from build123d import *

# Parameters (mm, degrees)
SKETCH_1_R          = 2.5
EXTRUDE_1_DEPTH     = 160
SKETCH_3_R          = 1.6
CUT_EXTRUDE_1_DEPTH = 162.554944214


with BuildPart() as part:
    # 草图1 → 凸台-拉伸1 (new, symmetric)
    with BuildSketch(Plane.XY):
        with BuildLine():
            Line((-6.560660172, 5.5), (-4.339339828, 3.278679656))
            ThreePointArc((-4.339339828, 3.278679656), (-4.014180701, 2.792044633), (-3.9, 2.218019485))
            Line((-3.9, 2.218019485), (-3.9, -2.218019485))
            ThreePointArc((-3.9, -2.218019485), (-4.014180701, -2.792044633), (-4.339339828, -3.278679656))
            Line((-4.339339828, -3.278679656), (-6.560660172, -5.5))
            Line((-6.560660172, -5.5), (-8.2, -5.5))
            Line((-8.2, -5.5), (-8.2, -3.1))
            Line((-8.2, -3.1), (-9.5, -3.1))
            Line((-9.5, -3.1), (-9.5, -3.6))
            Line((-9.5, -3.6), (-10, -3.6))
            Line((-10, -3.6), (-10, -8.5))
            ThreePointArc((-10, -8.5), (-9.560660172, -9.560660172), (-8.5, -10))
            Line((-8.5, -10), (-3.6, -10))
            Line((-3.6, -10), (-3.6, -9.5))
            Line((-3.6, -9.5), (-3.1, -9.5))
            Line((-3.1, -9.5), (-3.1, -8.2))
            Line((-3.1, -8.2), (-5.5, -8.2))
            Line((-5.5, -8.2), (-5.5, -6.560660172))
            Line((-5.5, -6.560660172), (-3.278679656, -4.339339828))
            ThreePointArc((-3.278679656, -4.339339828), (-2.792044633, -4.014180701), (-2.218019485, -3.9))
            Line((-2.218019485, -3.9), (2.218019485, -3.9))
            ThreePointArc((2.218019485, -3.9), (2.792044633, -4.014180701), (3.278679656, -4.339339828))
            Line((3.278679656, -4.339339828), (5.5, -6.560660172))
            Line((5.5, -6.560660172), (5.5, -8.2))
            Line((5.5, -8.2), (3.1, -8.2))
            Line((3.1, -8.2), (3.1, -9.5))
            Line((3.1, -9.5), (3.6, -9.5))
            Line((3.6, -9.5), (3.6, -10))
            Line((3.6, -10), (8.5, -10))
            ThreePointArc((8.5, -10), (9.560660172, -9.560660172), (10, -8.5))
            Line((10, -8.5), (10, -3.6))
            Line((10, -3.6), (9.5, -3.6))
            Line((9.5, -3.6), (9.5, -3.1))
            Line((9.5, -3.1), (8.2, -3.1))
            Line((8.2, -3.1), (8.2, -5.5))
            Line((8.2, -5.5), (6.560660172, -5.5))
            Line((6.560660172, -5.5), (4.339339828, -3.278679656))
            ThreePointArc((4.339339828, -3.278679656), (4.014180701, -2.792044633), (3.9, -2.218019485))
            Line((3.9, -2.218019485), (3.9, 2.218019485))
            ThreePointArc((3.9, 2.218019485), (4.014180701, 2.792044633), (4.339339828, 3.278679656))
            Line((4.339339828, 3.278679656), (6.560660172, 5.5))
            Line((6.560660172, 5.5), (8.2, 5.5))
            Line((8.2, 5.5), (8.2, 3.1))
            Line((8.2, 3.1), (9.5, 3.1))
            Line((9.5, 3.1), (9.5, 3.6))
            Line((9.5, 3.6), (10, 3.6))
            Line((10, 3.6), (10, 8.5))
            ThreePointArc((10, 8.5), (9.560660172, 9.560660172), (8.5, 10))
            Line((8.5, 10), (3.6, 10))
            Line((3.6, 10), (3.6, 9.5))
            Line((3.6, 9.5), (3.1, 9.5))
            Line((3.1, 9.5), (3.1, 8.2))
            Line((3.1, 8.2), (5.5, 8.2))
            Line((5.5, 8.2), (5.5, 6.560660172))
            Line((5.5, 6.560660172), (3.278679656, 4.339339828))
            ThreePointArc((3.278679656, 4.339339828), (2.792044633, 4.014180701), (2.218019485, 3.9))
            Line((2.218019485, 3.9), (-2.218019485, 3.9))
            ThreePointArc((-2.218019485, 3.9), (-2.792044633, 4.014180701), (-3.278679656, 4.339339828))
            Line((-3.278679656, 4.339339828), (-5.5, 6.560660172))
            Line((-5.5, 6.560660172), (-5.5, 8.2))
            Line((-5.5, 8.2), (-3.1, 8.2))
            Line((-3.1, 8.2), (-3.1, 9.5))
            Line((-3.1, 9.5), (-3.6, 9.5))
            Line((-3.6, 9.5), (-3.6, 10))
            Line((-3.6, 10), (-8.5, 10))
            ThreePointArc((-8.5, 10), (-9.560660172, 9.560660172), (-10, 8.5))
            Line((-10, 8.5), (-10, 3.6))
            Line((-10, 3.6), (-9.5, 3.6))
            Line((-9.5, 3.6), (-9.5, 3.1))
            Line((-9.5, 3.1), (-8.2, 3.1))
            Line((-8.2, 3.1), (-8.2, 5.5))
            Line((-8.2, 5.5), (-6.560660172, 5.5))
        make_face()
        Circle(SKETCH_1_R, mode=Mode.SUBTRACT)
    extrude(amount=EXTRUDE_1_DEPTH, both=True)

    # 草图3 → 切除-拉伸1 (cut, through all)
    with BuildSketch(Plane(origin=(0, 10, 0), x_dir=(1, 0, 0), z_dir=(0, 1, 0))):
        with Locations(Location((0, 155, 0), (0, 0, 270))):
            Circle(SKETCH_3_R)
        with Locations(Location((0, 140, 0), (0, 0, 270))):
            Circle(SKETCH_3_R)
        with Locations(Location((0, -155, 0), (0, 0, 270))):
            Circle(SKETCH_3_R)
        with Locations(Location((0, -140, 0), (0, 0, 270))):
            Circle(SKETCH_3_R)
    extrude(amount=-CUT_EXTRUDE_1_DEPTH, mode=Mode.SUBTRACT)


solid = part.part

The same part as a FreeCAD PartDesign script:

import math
import FreeCAD as App
import Part
import Sketcher
from FreeCAD import Vector

doc = App.newDocument("Part")
body = doc.addObject("PartDesign::Body", "Body")

# Sketch on XY plane
sketch1 = doc.addObject("Sketcher::SketchObject", "Sketch")
body.addObject(sketch1)
sketch1.AttachmentSupport = (doc.XY_Plane, [""])
sketch1.MapMode = "FlatFace"
sketch1.addGeometry([
    Part.LineSegment(Vector(-6.56066, 5.5, 0), Vector(-4.33934, 3.27868, 0)),  # 0
    Part.ArcOfCircle(Part.Circle(Vector(-5.4, 2.218019, 0), Vector(0, 0, 1), 1.5), math.radians(0), math.radians(45)),  # 1
    Part.LineSegment(Vector(-3.9, 2.218019, 0), Vector(-3.9, -2.218019, 0)),  # 2
    Part.ArcOfCircle(Part.Circle(Vector(-5.4, -2.218019, 0), Vector(0, 0, 1), 1.5), math.radians(-45), math.radians(0)),  # 3
    Part.LineSegment(Vector(-4.33934, -3.27868, 0), Vector(-6.56066, -5.5, 0)),  # 4
    Part.LineSegment(Vector(-6.56066, -5.5, 0), Vector(-8.2, -5.5, 0)),  # 5
    Part.LineSegment(Vector(-8.2, -5.5, 0), Vector(-8.2, -3.1, 0)),  # 6
    Part.LineSegment(Vector(-8.2, -3.1, 0), Vector(-9.5, -3.1, 0)),  # 7
    Part.LineSegment(Vector(-9.5, -3.1, 0), Vector(-9.5, -3.6, 0)),  # 8
    Part.LineSegment(Vector(-9.5, -3.6, 0), Vector(-10, -3.6, 0)),  # 9
    Part.LineSegment(Vector(-10, -3.6, 0), Vector(-10, -8.5, 0)),  # 10
    Part.ArcOfCircle(Part.Circle(Vector(-8.5, -8.5, 0), Vector(0, 0, 1), 1.5), math.radians(180), math.radians(270)),  # 11
    Part.LineSegment(Vector(-8.5, -10, 0), Vector(-3.6, -10, 0)),  # 12
    Part.LineSegment(Vector(-3.6, -10, 0), Vector(-3.6, -9.5, 0)),  # 13
    Part.LineSegment(Vector(-3.6, -9.5, 0), Vector(-3.1, -9.5, 0)),  # 14
    Part.LineSegment(Vector(-3.1, -9.5, 0), Vector(-3.1, -8.2, 0)),  # 15
    Part.LineSegment(Vector(-3.1, -8.2, 0), Vector(-5.5, -8.2, 0)),  # 16
    Part.LineSegment(Vector(-5.5, -8.2, 0), Vector(-5.5, -6.56066, 0)),  # 17
    Part.LineSegment(Vector(-5.5, -6.56066, 0), Vector(-3.27868, -4.33934, 0)),  # 18
    Part.ArcOfCircle(Part.Circle(Vector(-2.218019, -5.4, 0), Vector(0, 0, 1), 1.5), math.radians(90), math.radians(135)),  # 19
    Part.LineSegment(Vector(-2.218019, -3.9, 0), Vector(2.218019, -3.9, 0)),  # 20
    Part.ArcOfCircle(Part.Circle(Vector(2.218019, -5.4, 0), Vector(0, 0, 1), 1.5), math.radians(45), math.radians(90)),  # 21
    Part.LineSegment(Vector(3.27868, -4.33934, 0), Vector(5.5, -6.56066, 0)),  # 22
    Part.LineSegment(Vector(5.5, -6.56066, 0), Vector(5.5, -8.2, 0)),  # 23
    Part.LineSegment(Vector(5.5, -8.2, 0), Vector(3.1, -8.2, 0)),  # 24
    Part.LineSegment(Vector(3.1, -8.2, 0), Vector(3.1, -9.5, 0)),  # 25
    Part.LineSegment(Vector(3.1, -9.5, 0), Vector(3.6, -9.5, 0)),  # 26
    Part.LineSegment(Vector(3.6, -9.5, 0), Vector(3.6, -10, 0)),  # 27
    Part.LineSegment(Vector(3.6, -10, 0), Vector(8.5, -10, 0)),  # 28
    Part.ArcOfCircle(Part.Circle(Vector(8.5, -8.5, 0), Vector(0, 0, 1), 1.5), math.radians(-90), math.radians(0)),  # 29
    Part.LineSegment(Vector(10, -8.5, 0), Vector(10, -3.6, 0)),  # 30
    Part.LineSegment(Vector(10, -3.6, 0), Vector(9.5, -3.6, 0)),  # 31
    Part.LineSegment(Vector(9.5, -3.6, 0), Vector(9.5, -3.1, 0)),  # 32
    Part.LineSegment(Vector(9.5, -3.1, 0), Vector(8.2, -3.1, 0)),  # 33
    Part.LineSegment(Vector(8.2, -3.1, 0), Vector(8.2, -5.5, 0)),  # 34
    Part.LineSegment(Vector(8.2, -5.5, 0), Vector(6.56066, -5.5, 0)),  # 35
    Part.LineSegment(Vector(6.56066, -5.5, 0), Vector(4.33934, -3.27868, 0)),  # 36
    Part.ArcOfCircle(Part.Circle(Vector(5.4, -2.218019, 0), Vector(0, 0, 1), 1.5), math.radians(180), math.radians(225)),  # 37
    Part.LineSegment(Vector(3.9, -2.218019, 0), Vector(3.9, 2.218019, 0)),  # 38
    Part.ArcOfCircle(Part.Circle(Vector(5.4, 2.218019, 0), Vector(0, 0, 1), 1.5), math.radians(135), math.radians(180)),  # 39
    Part.LineSegment(Vector(4.33934, 3.27868, 0), Vector(6.56066, 5.5, 0)),  # 40
    Part.LineSegment(Vector(6.56066, 5.5, 0), Vector(8.2, 5.5, 0)),  # 41
    Part.LineSegment(Vector(8.2, 5.5, 0), Vector(8.2, 3.1, 0)),  # 42
    Part.LineSegment(Vector(8.2, 3.1, 0), Vector(9.5, 3.1, 0)),  # 43
    Part.LineSegment(Vector(9.5, 3.1, 0), Vector(9.5, 3.6, 0)),  # 44
    Part.LineSegment(Vector(9.5, 3.6, 0), Vector(10, 3.6, 0)),  # 45
    Part.LineSegment(Vector(10, 3.6, 0), Vector(10, 8.5, 0)),  # 46
    Part.ArcOfCircle(Part.Circle(Vector(8.5, 8.5, 0), Vector(0, 0, 1), 1.5), math.radians(0), math.radians(90)),  # 47
    Part.LineSegment(Vector(8.5, 10, 0), Vector(3.6, 10, 0)),  # 48
    Part.LineSegment(Vector(3.6, 10, 0), Vector(3.6, 9.5, 0)),  # 49
    Part.LineSegment(Vector(3.6, 9.5, 0), Vector(3.1, 9.5, 0)),  # 50
    Part.LineSegment(Vector(3.1, 9.5, 0), Vector(3.1, 8.2, 0)),  # 51
    Part.LineSegment(Vector(3.1, 8.2, 0), Vector(5.5, 8.2, 0)),  # 52
    Part.LineSegment(Vector(5.5, 8.2, 0), Vector(5.5, 6.56066, 0)),  # 53
    Part.LineSegment(Vector(5.5, 6.56066, 0), Vector(3.27868, 4.33934, 0)),  # 54
    Part.ArcOfCircle(Part.Circle(Vector(2.218019, 5.4, 0), Vector(0, 0, 1), 1.5), math.radians(-90), math.radians(-45)),  # 55
    Part.LineSegment(Vector(2.218019, 3.9, 0), Vector(-2.218019, 3.9, 0)),  # 56
    Part.ArcOfCircle(Part.Circle(Vector(-2.218019, 5.4, 0), Vector(0, 0, 1), 1.5), math.radians(-135), math.radians(-90)),  # 57
    Part.LineSegment(Vector(-3.27868, 4.33934, 0), Vector(-5.5, 6.56066, 0)),  # 58
    Part.LineSegment(Vector(-5.5, 6.56066, 0), Vector(-5.5, 8.2, 0)),  # 59
    Part.LineSegment(Vector(-5.5, 8.2, 0), Vector(-3.1, 8.2, 0)),  # 60
    Part.LineSegment(Vector(-3.1, 8.2, 0), Vector(-3.1, 9.5, 0)),  # 61
    Part.LineSegment(Vector(-3.1, 9.5, 0), Vector(-3.6, 9.5, 0)),  # 62
    Part.LineSegment(Vector(-3.6, 9.5, 0), Vector(-3.6, 10, 0)),  # 63
    Part.LineSegment(Vector(-3.6, 10, 0), Vector(-8.5, 10, 0)),  # 64
    Part.ArcOfCircle(Part.Circle(Vector(-8.5, 8.5, 0), Vector(0, 0, 1), 1.5), math.radians(90), math.radians(180)),  # 65
    Part.LineSegment(Vector(-10, 8.5, 0), Vector(-10, 3.6, 0)),  # 66
    Part.LineSegment(Vector(-10, 3.6, 0), Vector(-9.5, 3.6, 0)),  # 67
    Part.LineSegment(Vector(-9.5, 3.6, 0), Vector(-9.5, 3.1, 0)),  # 68
    Part.LineSegment(Vector(-9.5, 3.1, 0), Vector(-8.2, 3.1, 0)),  # 69
    Part.LineSegment(Vector(-8.2, 3.1, 0), Vector(-8.2, 5.5, 0)),  # 70
    Part.LineSegment(Vector(-8.2, 5.5, 0), Vector(-6.56066, 5.5, 0)),  # 71
    Part.Circle(Vector(0, 0, 0), Vector(0, 0, 1), 2.5),  # 72
], False)
sketch1.addConstraint([
    Sketcher.Constraint("Tangent", 0, 2, 1, 2),
    Sketcher.Constraint("Tangent", 1, 1, 2, 1),
    Sketcher.Constraint("Tangent", 2, 2, 3, 2),
    Sketcher.Constraint("Tangent", 3, 1, 4, 1),
    Sketcher.Constraint("Coincident", 4, 2, 5, 1),
    Sketcher.Constraint("Coincident", 5, 2, 6, 1),
    Sketcher.Constraint("Coincident", 6, 2, 7, 1),
    Sketcher.Constraint("Coincident", 7, 2, 8, 1),
    Sketcher.Constraint("Coincident", 8, 2, 9, 1),
    Sketcher.Constraint("Coincident", 9, 2, 10, 1),
    Sketcher.Constraint("Tangent", 10, 2, 11, 1),
    Sketcher.Constraint("Tangent", 11, 2, 12, 1),
    Sketcher.Constraint("Coincident", 12, 2, 13, 1),
    Sketcher.Constraint("Coincident", 13, 2, 14, 1),
    Sketcher.Constraint("Coincident", 14, 2, 15, 1),
    Sketcher.Constraint("Coincident", 15, 2, 16, 1),
    Sketcher.Constraint("Coincident", 16, 2, 17, 1),
    Sketcher.Constraint("Coincident", 17, 2, 18, 1),
    Sketcher.Constraint("Tangent", 18, 2, 19, 2),
    Sketcher.Constraint("Tangent", 19, 1, 20, 1),
    Sketcher.Constraint("Tangent", 20, 2, 21, 2),
    Sketcher.Constraint("Tangent", 21, 1, 22, 1),
    Sketcher.Constraint("Coincident", 22, 2, 23, 1),
    Sketcher.Constraint("Coincident", 23, 2, 24, 1),
    Sketcher.Constraint("Coincident", 24, 2, 25, 1),
    Sketcher.Constraint("Coincident", 25, 2, 26, 1),
    Sketcher.Constraint("Coincident", 26, 2, 27, 1),
    Sketcher.Constraint("Coincident", 27, 2, 28, 1),
    Sketcher.Constraint("Tangent", 28, 2, 29, 1),
    Sketcher.Constraint("Tangent", 29, 2, 30, 1),
    Sketcher.Constraint("Coincident", 30, 2, 31, 1),
    Sketcher.Constraint("Coincident", 31, 2, 32, 1),
    Sketcher.Constraint("Coincident", 32, 2, 33, 1),
    Sketcher.Constraint("Coincident", 33, 2, 34, 1),
    Sketcher.Constraint("Coincident", 34, 2, 35, 1),
    Sketcher.Constraint("Coincident", 35, 2, 36, 1),
    Sketcher.Constraint("Tangent", 36, 2, 37, 2),
    Sketcher.Constraint("Tangent", 37, 1, 38, 1),
    Sketcher.Constraint("Tangent", 38, 2, 39, 2),
    Sketcher.Constraint("Tangent", 39, 1, 40, 1),
    Sketcher.Constraint("Coincident", 40, 2, 41, 1),
    Sketcher.Constraint("Coincident", 41, 2, 42, 1),
    Sketcher.Constraint("Coincident", 42, 2, 43, 1),
    Sketcher.Constraint("Coincident", 43, 2, 44, 1),
    Sketcher.Constraint("Coincident", 44, 2, 45, 1),
    Sketcher.Constraint("Coincident", 45, 2, 46, 1),
    Sketcher.Constraint("Tangent", 46, 2, 47, 1),
    Sketcher.Constraint("Tangent", 47, 2, 48, 1),
    Sketcher.Constraint("Coincident", 48, 2, 49, 1),
    Sketcher.Constraint("Coincident", 49, 2, 50, 1),
    Sketcher.Constraint("Coincident", 50, 2, 51, 1),
    Sketcher.Constraint("Coincident", 51, 2, 52, 1),
    Sketcher.Constraint("Coincident", 52, 2, 53, 1),
    Sketcher.Constraint("Coincident", 53, 2, 54, 1),
    Sketcher.Constraint("Tangent", 54, 2, 55, 2),
    Sketcher.Constraint("Tangent", 55, 1, 56, 1),
    Sketcher.Constraint("Tangent", 56, 2, 57, 2),
    Sketcher.Constraint("Tangent", 57, 1, 58, 1),
    Sketcher.Constraint("Coincident", 58, 2, 59, 1),
    Sketcher.Constraint("Coincident", 59, 2, 60, 1),
    Sketcher.Constraint("Coincident", 60, 2, 61, 1),
    Sketcher.Constraint("Coincident", 61, 2, 62, 1),
    Sketcher.Constraint("Coincident", 62, 2, 63, 1),
    Sketcher.Constraint("Coincident", 63, 2, 64, 1),
    Sketcher.Constraint("Tangent", 64, 2, 65, 1),
    Sketcher.Constraint("Tangent", 65, 2, 66, 1),
    Sketcher.Constraint("Coincident", 66, 2, 67, 1),
    Sketcher.Constraint("Coincident", 67, 2, 68, 1),
    Sketcher.Constraint("Coincident", 68, 2, 69, 1),
    Sketcher.Constraint("Coincident", 69, 2, 70, 1),
    Sketcher.Constraint("Coincident", 70, 2, 71, 1),
    Sketcher.Constraint("Coincident", 71, 2, 0, 1),
    Sketcher.Constraint("Vertical", 2),
    Sketcher.Constraint("Horizontal", 5),
    Sketcher.Constraint("Vertical", 6),
    Sketcher.Constraint("Horizontal", 7),
    Sketcher.Constraint("Vertical", 8),
    Sketcher.Constraint("Horizontal", 9),
    Sketcher.Constraint("Vertical", 10),
    Sketcher.Constraint("Horizontal", 12),
    Sketcher.Constraint("Vertical", 13),
    Sketcher.Constraint("Horizontal", 14),
    Sketcher.Constraint("Vertical", 15),
    Sketcher.Constraint("Horizontal", 16),
    Sketcher.Constraint("Vertical", 17),
    Sketcher.Constraint("Horizontal", 20),
    Sketcher.Constraint("Vertical", 23),
    Sketcher.Constraint("Horizontal", 24),
    Sketcher.Constraint("Vertical", 25),
    Sketcher.Constraint("Horizontal", 26),
    Sketcher.Constraint("Vertical", 27),
    Sketcher.Constraint("Horizontal", 28),
    Sketcher.Constraint("Vertical", 30),
    Sketcher.Constraint("Horizontal", 31),
    Sketcher.Constraint("Vertical", 32),
    Sketcher.Constraint("Horizontal", 33),
    Sketcher.Constraint("Vertical", 34),
    Sketcher.Constraint("Horizontal", 35),
    Sketcher.Constraint("Vertical", 38),
    Sketcher.Constraint("Horizontal", 41),
    Sketcher.Constraint("Vertical", 42),
    Sketcher.Constraint("Horizontal", 43),
    Sketcher.Constraint("Vertical", 44),
    Sketcher.Constraint("Horizontal", 45),
    Sketcher.Constraint("Vertical", 46),
    Sketcher.Constraint("Horizontal", 48),
    Sketcher.Constraint("Vertical", 49),
    Sketcher.Constraint("Horizontal", 50),
    Sketcher.Constraint("Vertical", 51),
    Sketcher.Constraint("Horizontal", 52),
    Sketcher.Constraint("Vertical", 53),
    Sketcher.Constraint("Horizontal", 56),
    Sketcher.Constraint("Vertical", 59),
    Sketcher.Constraint("Horizontal", 60),
    Sketcher.Constraint("Vertical", 61),
    Sketcher.Constraint("Horizontal", 62),
    Sketcher.Constraint("Vertical", 63),
    Sketcher.Constraint("Horizontal", 64),
    Sketcher.Constraint("Vertical", 66),
    Sketcher.Constraint("Horizontal", 67),
    Sketcher.Constraint("Vertical", 68),
    Sketcher.Constraint("Horizontal", 69),
    Sketcher.Constraint("Vertical", 70),
    Sketcher.Constraint("Horizontal", 71),
    Sketcher.Constraint("Coincident", 72, 3, -1, 1),
    Sketcher.Constraint("Equal", 1, 3),
    Sketcher.Constraint("Equal", 3, 11),
    Sketcher.Constraint("Equal", 11, 19),
    Sketcher.Constraint("Equal", 19, 21),
    Sketcher.Constraint("Equal", 21, 29),
    Sketcher.Constraint("Equal", 29, 37),
    Sketcher.Constraint("Equal", 37, 39),
    Sketcher.Constraint("Equal", 39, 47),
    Sketcher.Constraint("Equal", 47, 55),
    Sketcher.Constraint("Equal", 55, 57),
    Sketcher.Constraint("Equal", 57, 65),
    Sketcher.Constraint("Symmetric", 1, 3, 37, 3, -1, 1),
    Sketcher.Constraint("Symmetric", 11, 3, 47, 3, -1, 1),
    Sketcher.Constraint("Symmetric", 19, 3, 55, 3, -1, 1),
    Sketcher.Constraint("Symmetric", 29, 3, 65, 3, -1, 1),
    Sketcher.Constraint("Symmetric", 3, 1, 39, 1, -1, 1),
    Sketcher.Constraint("Symmetric", 5, 2, 41, 2, -1, 1),
    Sketcher.Constraint("Symmetric", 7, 2, 43, 2, -1, 1),
    Sketcher.Constraint("Symmetric", 13, 2, 49, 2, -1, 1),
    Sketcher.Constraint("Symmetric", 15, 2, 51, 2, -1, 1),
    Sketcher.Constraint("Symmetric", 17, 2, 53, 2, -1, 1),
    Sketcher.Constraint("Symmetric", 21, 1, 57, 1, -1, 1),
    Sketcher.Constraint("Symmetric", 23, 2, 59, 2, -1, 1),
    Sketcher.Constraint("Symmetric", 25, 2, 61, 2, -1, 1),
    Sketcher.Constraint("Symmetric", 31, 2, 67, 2, -1, 1),
    Sketcher.Constraint("Symmetric", 33, 2, 69, 2, -1, 1),
    Sketcher.Constraint("Symmetric", 35, 2, 71, 2, -1, 1),
    Sketcher.Constraint("Symmetric", 11, 3, 29, 3, -2),
    Sketcher.Constraint("Symmetric", 18, 2, 21, 1, -2),
    Sketcher.Constraint("Symmetric", 16, 2, 23, 2, -2),
    Sketcher.Constraint("Symmetric", 14, 2, 25, 2, -2),
    Sketcher.Constraint("Symmetric", 8, 2, 31, 2, -2),
    Sketcher.Constraint("Symmetric", 6, 2, 33, 2, -2),
    Sketcher.Constraint("Symmetric", 4, 2, 35, 2, -2),
    Sketcher.Constraint("Perpendicular", 0, 4),
    Sketcher.Constraint("Parallel", 4, 18),
    Sketcher.Constraint("Perpendicular", 18, 22),
    Sketcher.Constraint("Horizontal", 45, 2, 66, 2),
    Sketcher.Constraint("Vertical", 27, 2, 48, 2),
    Sketcher.Constraint("Vertical", 13, 2, 62, 2),
    Sketcher.Constraint("Equal", 9, 14),
    Sketcher.Constraint("Equal", 56, 2),
    Sketcher.Constraint("Equal", 60, 6),
    Sketcher.Constraint("Equal", 67, 8),
    Sketcher.Constraint("Equal", 64, 10),
    Sketcher.Constraint("Equal", 8, 13),
    Sketcher.Constraint("Equal", 69, 15),
    Sketcher.Constraint("Equal", 71, 17),
    Sketcher.Constraint("Equal", 4, 18),
    Sketcher.Constraint("Diameter", 72, 5.0),
    Sketcher.Constraint("Radius", 1, 1.5),
    Sketcher.Constraint("DistanceX", 7, 2, 7, 1, 1.3),
    Sketcher.Constraint("DistanceX", 9, 2, 9, 1, 0.5),
    Sketcher.Constraint("DistanceX", 12, 1, 12, 2, 4.9),
    Sketcher.Constraint("DistanceX", 16, 2, 16, 1, 2.4),
    Sketcher.Constraint("DistanceX", 9, 2, -1, 1, 10.0),
    Sketcher.Constraint("DistanceX", 1, 3, -1, 1, 5.4),
    Sketcher.Constraint("DistanceX", 5, 2, 5, 1, 1.63934),
])
pad1 = doc.addObject("PartDesign::Pad", "Pad")
body.addObject(pad1)
pad1.Profile = sketch1
pad1.Length = 320
pad1.Midplane = True

# Sketch on XZ plane
sketch2 = doc.addObject("Sketcher::SketchObject", "Sketch001")
body.addObject(sketch2)
sketch2.AttachmentSupport = (doc.XZ_Plane, [""])
sketch2.MapMode = "FlatFace"
sketch2.AttachmentOffset = App.Placement(Vector(0, 0, -10), App.Rotation())
sketch2.addGeometry([
    Part.Circle(Vector(0, -155, 0), Vector(0, 0, 1), 1.6),
    Part.Circle(Vector(0, -140, 0), Vector(0, 0, 1), 1.6),
    Part.Circle(Vector(0, 155, 0), Vector(0, 0, 1), 1.6),
    Part.Circle(Vector(0, 140, 0), Vector(0, 0, 1), 1.6),
], False)
sketch2.addConstraint([
    Sketcher.Constraint("Equal", 0, 1),
    Sketcher.Constraint("Equal", 1, 2),
    Sketcher.Constraint("Equal", 2, 3),
    Sketcher.Constraint("Symmetric", 0, 3, 2, 3, -1, 1),
    Sketcher.Constraint("Symmetric", 1, 3, 3, 3, -1, 1),
    Sketcher.Constraint("PointOnObject", 0, 3, -2),
    Sketcher.Constraint("PointOnObject", 1, 3, -2),
    Sketcher.Constraint("Diameter", 0, 3.2),
    Sketcher.Constraint("DistanceY", 0, 3, -1, 1, 155.0),
    Sketcher.Constraint("DistanceY", 1, 3, -1, 1, 140.0),
])
pocket1 = doc.addObject("PartDesign::Pocket", "Pocket")
body.addObject(pocket1)
pocket1.Profile = sketch2
pocket1.Type = "ThroughAll"
pocket1.Reversed = True

doc.recompute()
